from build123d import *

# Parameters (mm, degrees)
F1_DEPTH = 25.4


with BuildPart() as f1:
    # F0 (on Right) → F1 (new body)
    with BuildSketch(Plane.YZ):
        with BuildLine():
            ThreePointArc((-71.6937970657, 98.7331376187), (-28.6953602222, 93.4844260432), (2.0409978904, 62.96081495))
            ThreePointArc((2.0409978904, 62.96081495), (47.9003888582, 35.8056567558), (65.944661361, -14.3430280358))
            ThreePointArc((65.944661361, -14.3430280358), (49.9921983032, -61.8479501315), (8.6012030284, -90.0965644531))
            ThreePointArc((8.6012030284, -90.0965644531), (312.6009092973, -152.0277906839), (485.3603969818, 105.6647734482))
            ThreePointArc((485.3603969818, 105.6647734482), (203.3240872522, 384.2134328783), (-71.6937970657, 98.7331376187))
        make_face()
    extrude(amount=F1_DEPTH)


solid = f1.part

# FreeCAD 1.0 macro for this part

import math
import FreeCAD as App
import Part
import Sketcher
from FreeCAD import Vector
Q = App.Units.Quantity

doc = App.newDocument("Part")
body = doc.addObject("PartDesign::Body", "Body")

# Sketch on YZ plane
sketch1 = doc.addObject("Sketcher::SketchObject", "Sketch")
body.addObject(sketch1)
sketch1.AttachmentSupport = (doc.YZ_Plane, [""])
sketch1.MapMode = "FlatFace"
sketch1.addGeometry([
    Part.ArcOfCircle(Part.Circle(Vector(-58, 33, 0), Vector(0, 0, 1), 67), math.radians(26), math.radians(102)),
    Part.ArcOfCircle(Part.Circle(Vector(-13, -14, 0), Vector(0, 0, 1), 79), math.radians(0), math.radians(79)),
    Part.ArcOfCircle(Part.Circle(Vector(-13, -14, 0), Vector(0, 0, 1), 79), math.radians(-74), math.radians(0)),
    Part.ArcOfCircle(Part.Circle(Vector(207, 106, 0), Vector(0, 0, 1), 279), math.radians(-135), math.radians(181)),
], False)
sketch1.addConstraint([
    Sketcher.Constraint("Coincident", 0, 1, 1, 2),
    Sketcher.Constraint("Tangent", 1, 1, 2, 2),
    Sketcher.Constraint("Coincident", 2, 1, 3, 1),
    Sketcher.Constraint("Coincident", 3, 2, 0, 2),
    Sketcher.Constraint("Equal", 1, 2),
    Sketcher.Constraint("Horizontal", 2, 3, 1, 1),
    Sketcher.Constraint("Radius", 0, Q("66.794545 mm")),
    Sketcher.Constraint("Radius", 1, Q("78.708808 mm")),
    Sketcher.Constraint("Radius", 3, Q("278.570224 mm")),
    Sketcher.Constraint("DistanceX", 0, 3, 1, 3, Q("45.0865 mm")),
    Sketcher.Constraint("DistanceY", 1, 3, 3, 3, Q("120.007801 mm")),
    Sketcher.Constraint("DistanceY", -1, 1, 0, 3, Q("33.388831 mm")),
    Sketcher.Constraint("DistanceY", 1, 3, -1, 1, Q("14.343028 mm")),
    Sketcher.Constraint("DistanceX", -1, 1, 1, 1, Q("65.944661 mm")),
    Sketcher.Constraint("DistanceX", 1, 3, 3, 3, Q("219.55432 mm")),
])
pad1 = doc.addObject("PartDesign::Pad", "Pad")
body.addObject(pad1)
pad1.Profile = sketch1
pad1.Length = Q("1 in")

doc.recompute()
